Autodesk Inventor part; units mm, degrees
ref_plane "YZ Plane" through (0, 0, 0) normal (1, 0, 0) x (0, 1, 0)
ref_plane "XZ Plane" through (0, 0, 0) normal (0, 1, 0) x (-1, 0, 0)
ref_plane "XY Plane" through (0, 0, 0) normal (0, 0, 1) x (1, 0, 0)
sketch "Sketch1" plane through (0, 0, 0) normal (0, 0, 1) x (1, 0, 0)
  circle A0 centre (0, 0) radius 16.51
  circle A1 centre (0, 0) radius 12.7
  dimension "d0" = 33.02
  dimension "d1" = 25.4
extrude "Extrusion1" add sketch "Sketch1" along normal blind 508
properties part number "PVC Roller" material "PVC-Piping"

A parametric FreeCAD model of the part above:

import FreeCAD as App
import Part
import Sketcher
from FreeCAD import Vector
Q = App.Units.Quantity

doc = App.newDocument("Part")
body = doc.addObject("PartDesign::Body", "Body")

sketch1 = body.newObject("Sketcher::SketchObject", "Sketch")
sketch1.AttachmentSupport = (doc.getObject("XY_Plane"), [""])
sketch1.MapMode = "FlatFace"
sketch1.addGeometry([
    Part.Circle(Vector(0, 0, 0), Vector(0, 0, 1), 17),
    Part.Circle(Vector(0, 0, 0), Vector(0, 0, 1), 13),
], False)
sketch1.addConstraint([
    Sketcher.Constraint("Coincident", 0, 3, -1, 1),
    Sketcher.Constraint("Coincident", 1, 3, -1, 1),
    Sketcher.Constraint("Diameter", 1, Q("1 in")),
    Sketcher.Constraint("Diameter", 0, Q("1.3 in")),
])
pad1 = body.newObject("PartDesign::Pad", "Pad")
pad1.Profile = sketch1
pad1.Length = Q("20 in")

doc.recompute()
